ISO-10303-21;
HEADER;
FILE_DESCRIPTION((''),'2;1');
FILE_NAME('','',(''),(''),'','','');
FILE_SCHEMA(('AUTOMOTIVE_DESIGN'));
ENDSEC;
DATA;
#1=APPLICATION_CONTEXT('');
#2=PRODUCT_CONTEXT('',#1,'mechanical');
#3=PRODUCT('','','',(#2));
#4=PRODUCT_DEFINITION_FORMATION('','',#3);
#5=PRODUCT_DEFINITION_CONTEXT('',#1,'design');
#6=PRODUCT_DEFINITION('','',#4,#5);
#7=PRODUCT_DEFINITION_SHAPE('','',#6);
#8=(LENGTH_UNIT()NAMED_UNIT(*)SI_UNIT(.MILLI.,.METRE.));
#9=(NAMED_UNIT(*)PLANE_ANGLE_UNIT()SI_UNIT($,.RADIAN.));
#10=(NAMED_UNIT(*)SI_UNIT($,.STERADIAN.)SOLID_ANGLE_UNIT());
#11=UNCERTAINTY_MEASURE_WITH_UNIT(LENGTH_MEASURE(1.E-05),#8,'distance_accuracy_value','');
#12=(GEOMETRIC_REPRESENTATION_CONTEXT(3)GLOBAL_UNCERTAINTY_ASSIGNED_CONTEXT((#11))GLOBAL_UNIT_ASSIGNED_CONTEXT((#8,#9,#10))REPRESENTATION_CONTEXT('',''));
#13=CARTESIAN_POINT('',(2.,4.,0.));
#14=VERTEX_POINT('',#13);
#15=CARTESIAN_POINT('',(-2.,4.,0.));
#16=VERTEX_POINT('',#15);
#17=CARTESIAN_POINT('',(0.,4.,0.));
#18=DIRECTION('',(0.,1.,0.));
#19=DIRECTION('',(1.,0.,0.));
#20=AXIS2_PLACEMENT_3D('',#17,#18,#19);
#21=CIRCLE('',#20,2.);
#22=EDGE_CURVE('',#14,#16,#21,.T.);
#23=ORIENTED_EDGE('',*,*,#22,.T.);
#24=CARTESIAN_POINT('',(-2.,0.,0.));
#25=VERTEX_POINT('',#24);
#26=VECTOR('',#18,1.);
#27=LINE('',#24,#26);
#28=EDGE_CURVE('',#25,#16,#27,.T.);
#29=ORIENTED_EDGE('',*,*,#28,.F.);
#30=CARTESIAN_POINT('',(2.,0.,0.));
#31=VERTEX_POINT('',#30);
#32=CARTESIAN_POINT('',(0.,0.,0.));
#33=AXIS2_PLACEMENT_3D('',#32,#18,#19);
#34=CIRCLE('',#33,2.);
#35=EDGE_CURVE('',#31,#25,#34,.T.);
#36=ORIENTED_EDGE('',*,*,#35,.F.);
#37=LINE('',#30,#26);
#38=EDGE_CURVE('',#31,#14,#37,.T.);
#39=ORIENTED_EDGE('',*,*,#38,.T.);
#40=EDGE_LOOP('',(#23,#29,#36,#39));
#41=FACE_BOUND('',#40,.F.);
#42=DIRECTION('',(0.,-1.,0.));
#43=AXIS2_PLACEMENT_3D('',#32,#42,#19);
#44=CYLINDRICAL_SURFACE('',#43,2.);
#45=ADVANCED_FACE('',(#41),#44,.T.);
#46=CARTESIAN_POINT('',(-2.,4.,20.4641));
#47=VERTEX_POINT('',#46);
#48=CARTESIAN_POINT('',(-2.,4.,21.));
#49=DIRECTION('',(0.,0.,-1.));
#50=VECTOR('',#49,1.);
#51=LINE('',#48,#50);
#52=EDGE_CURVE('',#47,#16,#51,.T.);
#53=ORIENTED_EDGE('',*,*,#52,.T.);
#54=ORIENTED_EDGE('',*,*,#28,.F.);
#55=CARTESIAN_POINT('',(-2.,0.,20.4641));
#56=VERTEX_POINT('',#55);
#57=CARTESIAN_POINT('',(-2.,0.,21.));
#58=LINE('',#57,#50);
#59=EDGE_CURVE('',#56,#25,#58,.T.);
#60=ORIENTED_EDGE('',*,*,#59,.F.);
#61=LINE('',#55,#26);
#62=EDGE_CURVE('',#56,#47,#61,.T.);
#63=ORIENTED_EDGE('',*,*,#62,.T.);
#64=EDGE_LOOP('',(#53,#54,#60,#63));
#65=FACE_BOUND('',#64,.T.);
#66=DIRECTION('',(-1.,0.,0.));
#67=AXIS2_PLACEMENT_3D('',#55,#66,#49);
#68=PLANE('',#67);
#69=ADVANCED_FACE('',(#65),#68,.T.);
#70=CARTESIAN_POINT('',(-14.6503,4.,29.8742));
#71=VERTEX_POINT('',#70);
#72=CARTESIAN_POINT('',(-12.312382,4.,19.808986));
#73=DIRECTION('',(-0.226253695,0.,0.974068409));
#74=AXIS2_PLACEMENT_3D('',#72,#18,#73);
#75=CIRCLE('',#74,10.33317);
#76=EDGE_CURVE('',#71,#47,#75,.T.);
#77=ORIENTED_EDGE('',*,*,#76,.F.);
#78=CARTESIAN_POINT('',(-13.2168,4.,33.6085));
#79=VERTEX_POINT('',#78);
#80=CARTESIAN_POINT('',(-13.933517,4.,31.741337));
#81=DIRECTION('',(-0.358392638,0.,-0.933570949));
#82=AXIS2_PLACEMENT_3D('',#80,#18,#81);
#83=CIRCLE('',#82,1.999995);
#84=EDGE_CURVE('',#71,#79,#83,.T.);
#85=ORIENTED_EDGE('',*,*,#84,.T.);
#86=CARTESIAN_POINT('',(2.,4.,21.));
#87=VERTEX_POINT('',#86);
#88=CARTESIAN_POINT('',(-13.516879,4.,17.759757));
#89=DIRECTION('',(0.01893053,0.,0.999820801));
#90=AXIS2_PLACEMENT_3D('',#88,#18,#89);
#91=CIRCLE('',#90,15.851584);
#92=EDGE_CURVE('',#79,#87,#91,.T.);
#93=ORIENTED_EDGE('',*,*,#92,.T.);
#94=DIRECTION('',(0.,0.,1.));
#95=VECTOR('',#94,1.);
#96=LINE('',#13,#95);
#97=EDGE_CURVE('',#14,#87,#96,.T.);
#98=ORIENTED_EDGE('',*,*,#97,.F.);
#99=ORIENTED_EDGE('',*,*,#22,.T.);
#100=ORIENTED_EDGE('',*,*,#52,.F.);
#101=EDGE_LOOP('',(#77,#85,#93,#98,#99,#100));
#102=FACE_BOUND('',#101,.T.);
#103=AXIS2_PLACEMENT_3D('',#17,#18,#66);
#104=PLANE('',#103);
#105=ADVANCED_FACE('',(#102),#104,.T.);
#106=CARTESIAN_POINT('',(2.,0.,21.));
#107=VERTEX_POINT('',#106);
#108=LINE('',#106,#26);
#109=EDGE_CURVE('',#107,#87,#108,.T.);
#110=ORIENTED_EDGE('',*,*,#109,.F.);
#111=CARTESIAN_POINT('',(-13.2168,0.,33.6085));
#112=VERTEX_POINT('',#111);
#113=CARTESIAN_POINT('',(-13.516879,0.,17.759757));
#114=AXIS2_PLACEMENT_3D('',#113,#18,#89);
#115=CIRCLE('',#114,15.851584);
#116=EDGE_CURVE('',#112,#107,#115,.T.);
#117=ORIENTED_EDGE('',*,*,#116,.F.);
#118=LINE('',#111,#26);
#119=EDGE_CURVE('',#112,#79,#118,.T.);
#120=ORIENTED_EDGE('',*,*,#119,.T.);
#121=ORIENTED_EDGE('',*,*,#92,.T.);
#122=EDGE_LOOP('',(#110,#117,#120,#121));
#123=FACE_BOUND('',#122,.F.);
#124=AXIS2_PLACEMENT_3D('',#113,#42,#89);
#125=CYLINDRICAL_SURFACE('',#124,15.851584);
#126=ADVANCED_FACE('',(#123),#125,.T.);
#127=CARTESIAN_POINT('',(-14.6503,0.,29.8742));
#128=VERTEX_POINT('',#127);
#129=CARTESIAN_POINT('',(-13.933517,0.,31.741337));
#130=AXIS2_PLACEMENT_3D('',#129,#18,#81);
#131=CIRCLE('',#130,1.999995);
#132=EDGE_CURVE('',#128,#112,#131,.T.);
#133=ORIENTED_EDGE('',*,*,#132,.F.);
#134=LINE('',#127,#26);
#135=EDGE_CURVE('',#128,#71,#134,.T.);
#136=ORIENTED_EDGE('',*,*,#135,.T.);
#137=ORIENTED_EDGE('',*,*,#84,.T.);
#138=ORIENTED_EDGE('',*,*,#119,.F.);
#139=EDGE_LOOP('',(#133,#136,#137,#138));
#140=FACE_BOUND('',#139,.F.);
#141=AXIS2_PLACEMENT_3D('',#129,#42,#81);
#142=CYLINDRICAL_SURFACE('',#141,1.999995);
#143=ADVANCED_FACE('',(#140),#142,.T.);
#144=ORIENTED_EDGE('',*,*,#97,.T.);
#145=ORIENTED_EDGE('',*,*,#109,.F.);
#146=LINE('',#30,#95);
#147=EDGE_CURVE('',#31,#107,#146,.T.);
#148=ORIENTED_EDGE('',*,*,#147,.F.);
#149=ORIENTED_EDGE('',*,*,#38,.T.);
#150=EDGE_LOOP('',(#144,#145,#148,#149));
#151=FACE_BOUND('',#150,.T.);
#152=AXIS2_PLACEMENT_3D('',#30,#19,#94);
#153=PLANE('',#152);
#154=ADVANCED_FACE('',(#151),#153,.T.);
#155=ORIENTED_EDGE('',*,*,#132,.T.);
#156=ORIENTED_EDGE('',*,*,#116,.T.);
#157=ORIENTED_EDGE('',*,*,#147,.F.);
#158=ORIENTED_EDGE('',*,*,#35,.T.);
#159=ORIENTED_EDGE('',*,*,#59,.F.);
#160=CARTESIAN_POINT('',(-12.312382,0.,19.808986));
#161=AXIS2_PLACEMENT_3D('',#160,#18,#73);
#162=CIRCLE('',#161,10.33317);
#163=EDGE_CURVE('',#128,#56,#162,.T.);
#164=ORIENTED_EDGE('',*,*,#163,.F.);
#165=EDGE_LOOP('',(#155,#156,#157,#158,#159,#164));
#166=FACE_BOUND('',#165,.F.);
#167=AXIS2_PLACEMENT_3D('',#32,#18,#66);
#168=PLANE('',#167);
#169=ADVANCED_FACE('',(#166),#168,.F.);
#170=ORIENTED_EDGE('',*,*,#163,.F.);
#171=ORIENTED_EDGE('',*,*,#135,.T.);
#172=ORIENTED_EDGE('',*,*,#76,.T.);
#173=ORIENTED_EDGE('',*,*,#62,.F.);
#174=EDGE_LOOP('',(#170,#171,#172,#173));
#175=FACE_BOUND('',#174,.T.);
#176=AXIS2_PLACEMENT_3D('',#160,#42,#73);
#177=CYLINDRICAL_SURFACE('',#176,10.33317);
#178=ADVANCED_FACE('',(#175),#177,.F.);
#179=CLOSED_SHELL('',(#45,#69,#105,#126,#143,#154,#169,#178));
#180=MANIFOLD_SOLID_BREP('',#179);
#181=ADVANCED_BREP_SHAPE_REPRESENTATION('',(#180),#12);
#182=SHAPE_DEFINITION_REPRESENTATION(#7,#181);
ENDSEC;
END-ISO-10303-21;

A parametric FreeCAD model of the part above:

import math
import FreeCAD as App
import Part
import Sketcher
from FreeCAD import Vector
Q = App.Units.Quantity

doc = App.newDocument("Part")
body = doc.addObject("PartDesign::Body", "Body")

sketch1 = body.newObject("Sketcher::SketchObject", "Sketch")
sketch1.AttachmentSupport = (doc.getObject("XZ_Plane"), [""])
sketch1.MapMode = "FlatFace"
sketch1.addGeometry(Part.LineSegment(Vector(2, 21, 0), Vector(2, 0, 0)), False)
sketch1.addGeometry(Part.ArcOfCircle(Part.Circle(Vector(0, 0, 0), Vector(0, 0, 1), 2), math.radians(180), math.radians(360)), False)
sketch1.addGeometry(Part.LineSegment(Vector(-2, 0, 0), Vector(-2, 20.5, 0)), False)
sketch1.addGeometry(Part.ArcOfCircle(Part.Circle(Vector(-12.3, 19.8, 0), Vector(0, 0, 1), 10.3), math.radians(4), math.radians(103)), False)
sketch1.addGeometry(Part.ArcOfCircle(Part.Circle(Vector(-13.9, 31.7, 0), Vector(0, 0, 1), 2), math.radians(69), math.radians(249)), False)
sketch1.addGeometry(Part.ArcOfCircle(Part.Circle(Vector(-13.5, 17.8, 0), Vector(0, 0, 1), 15.9), math.radians(12), math.radians(89)), False)
sketch1.addConstraint(Sketcher.Constraint("Tangent", 0, 2, 1, 2))
sketch1.addConstraint(Sketcher.Constraint("Tangent", 1, 1, 2, 1))
sketch1.addConstraint(Sketcher.Constraint("Coincident", 2, 2, 3, 1))
sketch1.addConstraint(Sketcher.Constraint("Coincident", 3, 2, 4, 2))
sketch1.addConstraint(Sketcher.Constraint("Coincident", 4, 1, 5, 2))
sketch1.addConstraint(Sketcher.Constraint("Coincident", 5, 1, 0, 1))
sketch1.addConstraint(Sketcher.Constraint("Vertical", 0))
sketch1.addConstraint(Sketcher.Constraint("Vertical", 2))
sketch1.addConstraint(Sketcher.Constraint("Coincident", 1, 3, -1, 1))
sketch1.addConstraint(Sketcher.Constraint("Equal", 1, 4))
sketch1.addConstraint(Sketcher.Constraint("Radius", 1, Q("2 mm")))
sketch1.addConstraint(Sketcher.Constraint("DistanceY", 0, 2, 0, 1, Q("21 mm")))
sketch1.addConstraint(Sketcher.Constraint("Radius", 3, Q("10.3332 mm")))
sketch1.addConstraint(Sketcher.Constraint("Radius", 5, Q("15.8516 mm")))
sketch1.addConstraint(Sketcher.Constraint("DistanceX", 5, 3, 4, 1, Q("0.3 mm")))
sketch1.addConstraint(Sketcher.Constraint("DistanceY", 2, 1, 2, 2, Q("20.464 mm")))
sketch1.addConstraint(Sketcher.Constraint("DistanceY", 2, 2, 3, 2, Q("9.41 mm")))
sketch1.addConstraint(Sketcher.Constraint("DistanceY", -1, 1, 3, 3, Q("19.809 mm")))
sketch1.addConstraint(Sketcher.Constraint("DistanceY", 3, 2, 4, 3, Q("1.867 mm")))
pad1 = body.newObject("PartDesign::Pad", "Pad")
pad1.Profile = sketch1
pad1.Length = 4
pad1.Reversed = True

doc.recompute()
